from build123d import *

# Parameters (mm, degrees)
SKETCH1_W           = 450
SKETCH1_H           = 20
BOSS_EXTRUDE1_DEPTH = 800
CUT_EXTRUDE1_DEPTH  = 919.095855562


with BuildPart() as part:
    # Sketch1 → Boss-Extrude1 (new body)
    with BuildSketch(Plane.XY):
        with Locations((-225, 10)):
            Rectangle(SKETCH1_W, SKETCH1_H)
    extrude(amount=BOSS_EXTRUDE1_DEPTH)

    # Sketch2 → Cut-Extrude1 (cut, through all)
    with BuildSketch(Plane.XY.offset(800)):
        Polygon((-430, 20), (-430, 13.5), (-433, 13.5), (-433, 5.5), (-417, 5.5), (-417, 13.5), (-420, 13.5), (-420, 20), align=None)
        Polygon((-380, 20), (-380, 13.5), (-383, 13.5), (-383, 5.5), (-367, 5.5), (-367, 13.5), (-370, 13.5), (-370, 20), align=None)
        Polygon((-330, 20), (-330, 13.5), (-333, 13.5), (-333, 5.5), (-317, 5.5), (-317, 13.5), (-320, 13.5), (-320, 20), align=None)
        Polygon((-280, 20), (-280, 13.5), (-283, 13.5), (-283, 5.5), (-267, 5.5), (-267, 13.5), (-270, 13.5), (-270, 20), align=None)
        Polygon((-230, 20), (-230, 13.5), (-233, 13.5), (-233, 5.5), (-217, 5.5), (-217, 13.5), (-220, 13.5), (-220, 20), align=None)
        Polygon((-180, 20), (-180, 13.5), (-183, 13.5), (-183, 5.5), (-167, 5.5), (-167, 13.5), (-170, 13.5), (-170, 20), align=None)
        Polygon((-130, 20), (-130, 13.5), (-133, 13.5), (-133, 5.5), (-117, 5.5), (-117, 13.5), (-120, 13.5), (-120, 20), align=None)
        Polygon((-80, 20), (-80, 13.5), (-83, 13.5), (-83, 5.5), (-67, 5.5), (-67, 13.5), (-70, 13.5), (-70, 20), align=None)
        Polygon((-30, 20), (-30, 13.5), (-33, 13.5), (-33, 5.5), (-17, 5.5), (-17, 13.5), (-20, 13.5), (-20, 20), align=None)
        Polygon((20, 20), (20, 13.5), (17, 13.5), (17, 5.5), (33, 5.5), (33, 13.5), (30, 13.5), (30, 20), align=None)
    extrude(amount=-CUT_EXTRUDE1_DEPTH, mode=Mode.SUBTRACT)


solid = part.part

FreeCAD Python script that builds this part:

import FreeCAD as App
import Part
import Sketcher


def add_polygon(sketch, points):
    """Adds a closed chain of lines whose ends are joined by coincident constraints."""
    first, n = sketch.GeometryCount, len(points)
    for a, b in zip(points, points[1:] + points[:1]):
        sketch.addGeometry(Part.LineSegment(App.Vector(*a, 0), App.Vector(*b, 0)), False)
    for i in range(n):
        sketch.addConstraint(Sketcher.Constraint("Coincident", first + i, 2, first + (i + 1) % n, 1))

doc = App.newDocument("Part")
body = doc.addObject("PartDesign::Body", "Body")

# Sketch on XY plane
sketch1 = body.newObject("Sketcher::SketchObject", "Sketch")
sketch1.AttachmentSupport = (doc.getObject("XY_Plane"), [""])
sketch1.MapMode = "FlatFace"
add_polygon(sketch1, [(-450, 20), (-450, 0), (0, 0), (0, 20)])  # lines 0-3
sketch1.addConstraint(Sketcher.Constraint("Vertical", 0))
sketch1.addConstraint(Sketcher.Constraint("Horizontal", 1))
sketch1.addConstraint(Sketcher.Constraint("Vertical", 2))
sketch1.addConstraint(Sketcher.Constraint("Horizontal", 3))
sketch1.addConstraint(Sketcher.Constraint("Coincident", 1, 2, -1, 1))
sketch1.addConstraint(Sketcher.Constraint("DistanceX", 1, 1, 1, 2, 450.0))
sketch1.addConstraint(Sketcher.Constraint("DistanceY", 0, 2, 0, 1, 20.0))
pad1 = body.newObject("PartDesign::Pad", "Pad")
pad1.Profile = sketch1
pad1.Length = 800

# Sketch on XY plane
sketch2 = body.newObject("Sketcher::SketchObject", "Sketch001")
sketch2.AttachmentSupport = (doc.getObject("XY_Plane"), [""])
sketch2.MapMode = "FlatFace"
sketch2.AttachmentOffset = App.Placement(App.Vector(0, 0, 800), App.Rotation())
add_polygon(sketch2, [(-430, 20), (-430, 13.5), (-433, 13.5), (-433, 5.5), (-417, 5.5), (-417, 13.5), (-420, 13.5), (-420, 20)])  # lines 0-7
add_polygon(sketch2, [(-380, 20), (-380, 13.5), (-383, 13.5), (-383, 5.5), (-367, 5.5), (-367, 13.5), (-370, 13.5), (-370, 20)])  # lines 8-15
add_polygon(sketch2, [(-330, 20), (-330, 13.5), (-333, 13.5), (-333, 5.5), (-317, 5.5), (-317, 13.5), (-320, 13.5), (-320, 20)])  # lines 16-23
add_polygon(sketch2, [(-280, 20), (-280, 13.5), (-283, 13.5), (-283, 5.5), (-267, 5.5), (-267, 13.5), (-270, 13.5), (-270, 20)])  # lines 24-31
add_polygon(sketch2, [(-230, 20), (-230, 13.5), (-233, 13.5), (-233, 5.5), (-217, 5.5), (-217, 13.5), (-220, 13.5), (-220, 20)])  # lines 32-39
add_polygon(sketch2, [(-180, 20), (-180, 13.5), (-183, 13.5), (-183, 5.5), (-167, 5.5), (-167, 13.5), (-170, 13.5), (-170, 20)])  # lines 40-47
add_polygon(sketch2, [(-130, 20), (-130, 13.5), (-133, 13.5), (-133, 5.5), (-117, 5.5), (-117, 13.5), (-120, 13.5), (-120, 20)])  # lines 48-55
add_polygon(sketch2, [(-80, 20), (-80, 13.5), (-83, 13.5), (-83, 5.5), (-67, 5.5), (-67, 13.5), (-70, 13.5), (-70, 20)])  # lines 56-63
add_polygon(sketch2, [(-30, 20), (-30, 13.5), (-33, 13.5), (-33, 5.5), (-17, 5.5), (-17, 13.5), (-20, 13.5), (-20, 20)])  # lines 64-71
add_polygon(sketch2, [(20, 20), (20, 13.5), (17, 13.5), (17, 5.5), (33, 5.5), (33, 13.5), (30, 13.5), (30, 20)])  # lines 72-79
sketch2.addConstraint(Sketcher.Constraint("Vertical", 0))
sketch2.addConstraint(Sketcher.Constraint("Horizontal", 1))
sketch2.addConstraint(Sketcher.Constraint("Vertical", 2))
sketch2.addConstraint(Sketcher.Constraint("Horizontal", 3))
sketch2.addConstraint(Sketcher.Constraint("Vertical", 4))
sketch2.addConstraint(Sketcher.Constraint("Horizontal", 5))
sketch2.addConstraint(Sketcher.Constraint("Vertical", 6))
sketch2.addConstraint(Sketcher.Constraint("Horizontal", 7))
sketch2.addConstraint(Sketcher.Constraint("Vertical", 8))
sketch2.addConstraint(Sketcher.Constraint("Horizontal", 9))
sketch2.addConstraint(Sketcher.Constraint("Vertical", 10))
sketch2.addConstraint(Sketcher.Constraint("Horizontal", 11))
sketch2.addConstraint(Sketcher.Constraint("Vertical", 12))
sketch2.addConstraint(Sketcher.Constraint("Horizontal", 13))
sketch2.addConstraint(Sketcher.Constraint("Vertical", 14))
sketch2.addConstraint(Sketcher.Constraint("Horizontal", 15))
sketch2.addConstraint(Sketcher.Constraint("Vertical", 16))
sketch2.addConstraint(Sketcher.Constraint("Horizontal", 17))
sketch2.addConstraint(Sketcher.Constraint("Vertical", 18))
sketch2.addConstraint(Sketcher.Constraint("Horizontal", 19))
sketch2.addConstraint(Sketcher.Constraint("Vertical", 20))
sketch2.addConstraint(Sketcher.Constraint("Horizontal", 21))
sketch2.addConstraint(Sketcher.Constraint("Vertical", 22))
sketch2.addConstraint(Sketcher.Constraint("Horizontal", 23))
sketch2.addConstraint(Sketcher.Constraint("Vertical", 24))
sketch2.addConstraint(Sketcher.Constraint("Horizontal", 25))
sketch2.addConstraint(Sketcher.Constraint("Vertical", 26))
sketch2.addConstraint(Sketcher.Constraint("Horizontal", 27))
sketch2.addConstraint(Sketcher.Constraint("Vertical", 28))
sketch2.addConstraint(Sketcher.Constraint("Horizontal", 29))
sketch2.addConstraint(Sketcher.Constraint("Vertical", 30))
sketch2.addConstraint(Sketcher.Constraint("Horizontal", 31))
sketch2.addConstraint(Sketcher.Constraint("Vertical", 32))
sketch2.addConstraint(Sketcher.Constraint("Horizontal", 33))
sketch2.addConstraint(Sketcher.Constraint("Vertical", 34))
sketch2.addConstraint(Sketcher.Constraint("Horizontal", 35))
sketch2.addConstraint(Sketcher.Constraint("Vertical", 36))
sketch2.addConstraint(Sketcher.Constraint("Horizontal", 37))
sketch2.addConstraint(Sketcher.Constraint("Vertical", 38))
sketch2.addConstraint(Sketcher.Constraint("Horizontal", 39))
sketch2.addConstraint(Sketcher.Constraint("Vertical", 40))
sketch2.addConstraint(Sketcher.Constraint("Horizontal", 41))
sketch2.addConstraint(Sketcher.Constraint("Vertical", 42))
sketch2.addConstraint(Sketcher.Constraint("Horizontal", 43))
sketch2.addConstraint(Sketcher.Constraint("Vertical", 44))
sketch2.addConstraint(Sketcher.Constraint("Horizontal", 45))
sketch2.addConstraint(Sketcher.Constraint("Vertical", 46))
sketch2.addConstraint(Sketcher.Constraint("Horizontal", 47))
sketch2.addConstraint(Sketcher.Constraint("Vertical", 48))
sketch2.addConstraint(Sketcher.Constraint("Horizontal", 49))
sketch2.addConstraint(Sketcher.Constraint("Vertical", 50))
sketch2.addConstraint(Sketcher.Constraint("Horizontal", 51))
sketch2.addConstraint(Sketcher.Constraint("Vertical", 52))
sketch2.addConstraint(Sketcher.Constraint("Horizontal", 53))
sketch2.addConstraint(Sketcher.Constraint("Vertical", 54))
sketch2.addConstraint(Sketcher.Constraint("Horizontal", 55))
sketch2.addConstraint(Sketcher.Constraint("Vertical", 56))
sketch2.addConstraint(Sketcher.Constraint("Horizontal", 57))
sketch2.addConstraint(Sketcher.Constraint("Vertical", 58))
sketch2.addConstraint(Sketcher.Constraint("Horizontal", 59))
sketch2.addConstraint(Sketcher.Constraint("Vertical", 60))
sketch2.addConstraint(Sketcher.Constraint("Horizontal", 61))
sketch2.addConstraint(Sketcher.Constraint("Vertical", 62))
sketch2.addConstraint(Sketcher.Constraint("Horizontal", 63))
sketch2.addConstraint(Sketcher.Constraint("Vertical", 64))
sketch2.addConstraint(Sketcher.Constraint("Horizontal", 65))
sketch2.addConstraint(Sketcher.Constraint("Vertical", 66))
sketch2.addConstraint(Sketcher.Constraint("Horizontal", 67))
sketch2.addConstraint(Sketcher.Constraint("Vertical", 68))
sketch2.addConstraint(Sketcher.Constraint("Horizontal", 69))
sketch2.addConstraint(Sketcher.Constraint("Vertical", 70))
sketch2.addConstraint(Sketcher.Constraint("Horizontal", 71))
sketch2.addConstraint(Sketcher.Constraint("Vertical", 72))
sketch2.addConstraint(Sketcher.Constraint("Horizontal", 73))
sketch2.addConstraint(Sketcher.Constraint("Vertical", 74))
sketch2.addConstraint(Sketcher.Constraint("Horizontal", 75))
sketch2.addConstraint(Sketcher.Constraint("Vertical", 76))
sketch2.addConstraint(Sketcher.Constraint("Horizontal", 77))
sketch2.addConstraint(Sketcher.Constraint("Vertical", 78))
sketch2.addConstraint(Sketcher.Constraint("Horizontal", 79))
sketch2.addConstraint(Sketcher.Constraint("Symmetric", 69, 2, 72, 2, -2))
sketch2.addConstraint(Sketcher.Constraint("Symmetric", 67, 2, 74, 2, -2))
sketch2.addConstraint(Sketcher.Constraint("Symmetric", 65, 2, 76, 2, -2))
sketch2.addConstraint(Sketcher.Constraint("Symmetric", 71, 2, 78, 2, -2))
sketch2.addConstraint(Sketcher.Constraint("Horizontal", 1, 2, 4, 2))
sketch2.addConstraint(Sketcher.Constraint("Horizontal", 5, 2, 8, 2))
sketch2.addConstraint(Sketcher.Constraint("Horizontal", 3, 2, 10, 2))
sketch2.addConstraint(Sketcher.Constraint("Horizontal", 9, 2, 12, 2))
sketch2.addConstraint(Sketcher.Constraint("Horizontal", 7, 2, 14, 2))
sketch2.addConstraint(Sketcher.Constraint("Horizontal", 13, 2, 16, 2))
sketch2.addConstraint(Sketcher.Constraint("Horizontal", 11, 2, 18, 2))
sketch2.addConstraint(Sketcher.Constraint("Horizontal", 17, 2, 20, 2))
sketch2.addConstraint(Sketcher.Constraint("Horizontal", 15, 2, 22, 2))
sketch2.addConstraint(Sketcher.Constraint("Horizontal", 21, 2, 24, 2))
sketch2.addConstraint(Sketcher.Constraint("Horizontal", 19, 2, 26, 2))
sketch2.addConstraint(Sketcher.Constraint("Horizontal", 25, 2, 28, 2))
sketch2.addConstraint(Sketcher.Constraint("Horizontal", 23, 2, 30, 2))
sketch2.addConstraint(Sketcher.Constraint("Horizontal", 29, 2, 32, 2))
sketch2.addConstraint(Sketcher.Constraint("Horizontal", 27, 2, 34, 2))
sketch2.addConstraint(Sketcher.Constraint("Horizontal", 33, 2, 36, 2))
sketch2.addConstraint(Sketcher.Constraint("Horizontal", 31, 2, 38, 2))
sketch2.addConstraint(Sketcher.Constraint("Horizontal", 37, 2, 40, 2))
sketch2.addConstraint(Sketcher.Constraint("Horizontal", 35, 2, 42, 2))
sketch2.addConstraint(Sketcher.Constraint("Horizontal", 41, 2, 44, 2))
sketch2.addConstraint(Sketcher.Constraint("Horizontal", 39, 2, 46, 2))
sketch2.addConstraint(Sketcher.Constraint("Horizontal", 45, 2, 48, 2))
sketch2.addConstraint(Sketcher.Constraint("Horizontal", 43, 2, 50, 2))
sketch2.addConstraint(Sketcher.Constraint("Horizontal", 49, 2, 52, 2))
sketch2.addConstraint(Sketcher.Constraint("Horizontal", 47, 2, 54, 2))
sketch2.addConstraint(Sketcher.Constraint("Horizontal", 53, 2, 56, 2))
sketch2.addConstraint(Sketcher.Constraint("Horizontal", 51, 2, 58, 2))
sketch2.addConstraint(Sketcher.Constraint("Horizontal", 57, 2, 60, 2))
sketch2.addConstraint(Sketcher.Constraint("Horizontal", 55, 2, 62, 2))
sketch2.addConstraint(Sketcher.Constraint("Horizontal", 61, 2, 64, 2))
sketch2.addConstraint(Sketcher.Constraint("Horizontal", 59, 2, 66, 2))
sketch2.addConstraint(Sketcher.Constraint("Horizontal", 65, 2, 68, 2))
sketch2.addConstraint(Sketcher.Constraint("Horizontal", 63, 2, 70, 2))
sketch2.addConstraint(Sketcher.Constraint("Equal", 1, 5))
sketch2.addConstraint(Sketcher.Constraint("Equal", 5, 9))
sketch2.addConstraint(Sketcher.Constraint("Equal", 3, 11))
sketch2.addConstraint(Sketcher.Constraint("Equal", 9, 13))
sketch2.addConstraint(Sketcher.Constraint("Equal", 13, 17))
sketch2.addConstraint(Sketcher.Constraint("Equal", 11, 19))
sketch2.addConstraint(Sketcher.Constraint("Equal", 17, 21))
sketch2.addConstraint(Sketcher.Constraint("Equal", 21, 25))
sketch2.addConstraint(Sketcher.Constraint("Equal", 19, 27))
sketch2.addConstraint(Sketcher.Constraint("Equal", 25, 29))
sketch2.addConstraint(Sketcher.Constraint("Equal", 29, 33))
sketch2.addConstraint(Sketcher.Constraint("Equal", 27, 35))
sketch2.addConstraint(Sketcher.Constraint("Equal", 33, 37))
sketch2.addConstraint(Sketcher.Constraint("Equal", 37, 41))
sketch2.addConstraint(Sketcher.Constraint("Equal", 35, 43))
sketch2.addConstraint(Sketcher.Constraint("Equal", 41, 45))
sketch2.addConstraint(Sketcher.Constraint("Equal", 45, 49))
sketch2.addConstraint(Sketcher.Constraint("Equal", 43, 51))
sketch2.addConstraint(Sketcher.Constraint("Equal", 49, 53))
sketch2.addConstraint(Sketcher.Constraint("Equal", 53, 57))
sketch2.addConstraint(Sketcher.Constraint("Equal", 51, 59))
sketch2.addConstraint(Sketcher.Constraint("Equal", 57, 61))
sketch2.addConstraint(Sketcher.Constraint("Equal", 61, 65))
sketch2.addConstraint(Sketcher.Constraint("Equal", 59, 67))
sketch2.addConstraint(Sketcher.Constraint("Equal", 65, 69))
sketch2.addConstraint(Sketcher.Constraint("DistanceX", 1, 2, 1, 1, 3.0))
sketch2.addConstraint(Sketcher.Constraint("DistanceX", 3, 1, 3, 2, 16.0))
sketch2.addConstraint(Sketcher.Constraint("DistanceY", 2, 2, 2, 1, 8.0))
sketch2.addConstraint(Sketcher.Constraint("DistanceY", 0, 2, 0, 1, 6.5))
sketch2.addConstraint(Sketcher.Constraint("DistanceX", 0, 2, -1, 1, 430.0))
sketch2.addConstraint(Sketcher.Constraint("DistanceY", -1, 1, 6, 2, 20.0))
sketch2.addConstraint(Sketcher.Constraint("DistanceX", 8, 2, -1, 1, 380.0))
sketch2.addConstraint(Sketcher.Constraint("DistanceX", 16, 2, -1, 1, 330.0))
sketch2.addConstraint(Sketcher.Constraint("DistanceX", 24, 2, -1, 1, 280.0))
sketch2.addConstraint(Sketcher.Constraint("DistanceX", 32, 2, -1, 1, 230.0))
sketch2.addConstraint(Sketcher.Constraint("DistanceX", 40, 2, -1, 1, 180.0))
sketch2.addConstraint(Sketcher.Constraint("DistanceX", 48, 2, -1, 1, 130.0))
sketch2.addConstraint(Sketcher.Constraint("DistanceX", 56, 2, -1, 1, 80.0))
sketch2.addConstraint(Sketcher.Constraint("DistanceX", 64, 2, -1, 1, 30.0))
pocket1 = body.newObject("PartDesign::Pocket", "Pocket")
pocket1.Profile = sketch2
pocket1.Type = "ThroughAll"

doc.recompute()
